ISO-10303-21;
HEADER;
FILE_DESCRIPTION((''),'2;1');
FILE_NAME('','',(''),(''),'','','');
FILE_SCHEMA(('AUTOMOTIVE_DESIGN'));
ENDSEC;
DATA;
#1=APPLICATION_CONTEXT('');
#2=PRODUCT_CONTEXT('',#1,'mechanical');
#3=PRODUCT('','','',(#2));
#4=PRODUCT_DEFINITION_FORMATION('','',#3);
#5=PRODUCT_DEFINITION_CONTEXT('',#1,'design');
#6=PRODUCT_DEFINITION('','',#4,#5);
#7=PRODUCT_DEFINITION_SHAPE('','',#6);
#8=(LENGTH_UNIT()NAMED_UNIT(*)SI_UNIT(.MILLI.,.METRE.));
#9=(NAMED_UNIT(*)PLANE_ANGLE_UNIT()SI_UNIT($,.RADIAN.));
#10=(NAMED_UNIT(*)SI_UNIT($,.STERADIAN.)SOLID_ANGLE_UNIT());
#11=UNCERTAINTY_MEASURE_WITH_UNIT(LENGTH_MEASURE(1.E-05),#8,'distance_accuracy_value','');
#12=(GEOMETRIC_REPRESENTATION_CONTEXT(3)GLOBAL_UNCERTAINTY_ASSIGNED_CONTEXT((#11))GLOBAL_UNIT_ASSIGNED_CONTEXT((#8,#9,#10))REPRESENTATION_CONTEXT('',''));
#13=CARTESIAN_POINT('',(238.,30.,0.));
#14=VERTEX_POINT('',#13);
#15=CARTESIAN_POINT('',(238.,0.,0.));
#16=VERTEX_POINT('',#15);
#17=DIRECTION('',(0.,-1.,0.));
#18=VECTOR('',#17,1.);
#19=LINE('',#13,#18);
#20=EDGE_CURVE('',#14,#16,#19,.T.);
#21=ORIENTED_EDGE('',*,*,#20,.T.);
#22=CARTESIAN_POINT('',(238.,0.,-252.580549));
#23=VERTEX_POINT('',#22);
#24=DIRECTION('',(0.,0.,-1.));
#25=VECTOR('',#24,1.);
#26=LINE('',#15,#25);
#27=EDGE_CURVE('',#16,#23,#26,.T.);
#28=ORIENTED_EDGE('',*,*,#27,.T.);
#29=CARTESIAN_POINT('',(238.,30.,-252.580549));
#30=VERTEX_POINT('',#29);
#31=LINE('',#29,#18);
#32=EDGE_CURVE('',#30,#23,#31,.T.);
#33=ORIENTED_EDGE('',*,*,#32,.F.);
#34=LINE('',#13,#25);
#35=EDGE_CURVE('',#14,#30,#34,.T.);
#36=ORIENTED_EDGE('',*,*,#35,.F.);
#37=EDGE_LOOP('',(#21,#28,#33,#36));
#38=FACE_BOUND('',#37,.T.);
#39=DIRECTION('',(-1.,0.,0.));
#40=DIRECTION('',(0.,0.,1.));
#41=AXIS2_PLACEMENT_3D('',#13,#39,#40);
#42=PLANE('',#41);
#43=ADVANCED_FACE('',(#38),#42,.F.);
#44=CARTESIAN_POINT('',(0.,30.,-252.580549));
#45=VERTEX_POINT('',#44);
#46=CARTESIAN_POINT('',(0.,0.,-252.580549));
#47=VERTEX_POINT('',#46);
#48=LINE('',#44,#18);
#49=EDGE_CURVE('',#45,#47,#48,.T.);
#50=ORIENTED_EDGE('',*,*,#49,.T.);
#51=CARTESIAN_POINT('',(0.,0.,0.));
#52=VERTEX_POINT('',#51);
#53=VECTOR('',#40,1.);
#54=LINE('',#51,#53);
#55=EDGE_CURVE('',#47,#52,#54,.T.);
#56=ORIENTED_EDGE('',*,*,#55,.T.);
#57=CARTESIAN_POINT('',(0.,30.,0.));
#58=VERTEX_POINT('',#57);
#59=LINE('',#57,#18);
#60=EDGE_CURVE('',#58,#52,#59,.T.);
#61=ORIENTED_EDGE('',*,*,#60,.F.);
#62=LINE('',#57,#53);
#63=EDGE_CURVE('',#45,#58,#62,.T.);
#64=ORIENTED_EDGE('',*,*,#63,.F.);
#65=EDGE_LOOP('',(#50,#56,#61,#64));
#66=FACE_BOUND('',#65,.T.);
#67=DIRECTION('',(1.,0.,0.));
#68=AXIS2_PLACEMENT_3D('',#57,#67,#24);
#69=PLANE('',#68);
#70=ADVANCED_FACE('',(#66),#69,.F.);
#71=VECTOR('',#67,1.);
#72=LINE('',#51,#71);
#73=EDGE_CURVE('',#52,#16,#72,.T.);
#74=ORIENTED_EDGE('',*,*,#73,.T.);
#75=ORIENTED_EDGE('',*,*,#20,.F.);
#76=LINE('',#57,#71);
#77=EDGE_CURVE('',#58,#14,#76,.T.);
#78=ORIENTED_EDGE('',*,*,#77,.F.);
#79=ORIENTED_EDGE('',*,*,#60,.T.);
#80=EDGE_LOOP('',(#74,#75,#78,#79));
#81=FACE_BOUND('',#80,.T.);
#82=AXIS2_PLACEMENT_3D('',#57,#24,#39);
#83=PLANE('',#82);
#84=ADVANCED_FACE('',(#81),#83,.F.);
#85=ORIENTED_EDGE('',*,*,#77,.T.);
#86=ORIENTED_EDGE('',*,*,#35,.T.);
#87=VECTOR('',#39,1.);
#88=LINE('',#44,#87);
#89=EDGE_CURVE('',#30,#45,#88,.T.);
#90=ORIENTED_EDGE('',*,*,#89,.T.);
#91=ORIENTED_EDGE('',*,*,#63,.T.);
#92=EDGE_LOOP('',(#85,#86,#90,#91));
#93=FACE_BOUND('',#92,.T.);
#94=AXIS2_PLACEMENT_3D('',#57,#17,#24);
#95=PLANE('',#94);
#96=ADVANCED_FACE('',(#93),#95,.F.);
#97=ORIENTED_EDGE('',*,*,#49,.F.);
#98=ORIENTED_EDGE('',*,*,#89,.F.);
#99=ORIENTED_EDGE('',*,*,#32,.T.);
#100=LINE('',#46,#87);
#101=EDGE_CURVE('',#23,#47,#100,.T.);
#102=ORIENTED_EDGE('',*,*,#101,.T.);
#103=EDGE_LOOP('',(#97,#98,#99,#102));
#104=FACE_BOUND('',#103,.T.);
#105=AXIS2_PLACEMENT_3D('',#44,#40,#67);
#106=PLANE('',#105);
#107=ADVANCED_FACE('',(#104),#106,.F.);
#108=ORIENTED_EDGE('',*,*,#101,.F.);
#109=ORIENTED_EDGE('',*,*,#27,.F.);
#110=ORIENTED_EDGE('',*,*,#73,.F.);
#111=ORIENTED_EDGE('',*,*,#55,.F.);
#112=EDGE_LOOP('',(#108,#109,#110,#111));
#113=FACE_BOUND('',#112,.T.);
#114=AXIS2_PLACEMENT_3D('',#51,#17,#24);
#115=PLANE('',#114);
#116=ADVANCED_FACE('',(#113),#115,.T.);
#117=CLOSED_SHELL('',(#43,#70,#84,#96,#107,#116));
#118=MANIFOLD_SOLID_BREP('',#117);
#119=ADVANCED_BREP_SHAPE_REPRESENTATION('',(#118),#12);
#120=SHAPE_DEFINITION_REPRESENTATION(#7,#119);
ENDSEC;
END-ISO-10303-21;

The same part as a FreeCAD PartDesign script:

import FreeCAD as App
import Part
import Sketcher
Q = App.Units.Quantity


def add_polygon(sketch, points):
    """Adds a closed chain of lines whose ends are joined by coincident constraints."""
    first, n = sketch.GeometryCount, len(points)
    for a, b in zip(points, points[1:] + points[:1]):
        sketch.addGeometry(Part.LineSegment(App.Vector(*a, 0), App.Vector(*b, 0)), False)
    for i in range(n):
        sketch.addConstraint(Sketcher.Constraint("Coincident", first + i, 2, first + (i + 1) % n, 1))

doc = App.newDocument("Part")
body = doc.addObject("PartDesign::Body", "Body")

# Sketch on XZ plane
sketch1 = doc.addObject("Sketcher::SketchObject", "Sketch")
body.addObject(sketch1)
sketch1.AttachmentSupport = (doc.XZ_Plane, [""])
sketch1.MapMode = "FlatFace"
add_polygon(sketch1, [(0, -253), (0, 0), (238, 0), (238, -253)])  # lines 0-3
sketch1.addConstraint(Sketcher.Constraint("Vertical", 0))
sketch1.addConstraint(Sketcher.Constraint("Horizontal", 1))
sketch1.addConstraint(Sketcher.Constraint("Vertical", 2))
sketch1.addConstraint(Sketcher.Constraint("Horizontal", 3))
sketch1.addConstraint(Sketcher.Constraint("Coincident", 0, 2, -1, 1))
sketch1.addConstraint(Sketcher.Constraint("DistanceX", 1, 1, 1, 2, Q("238 mm")))
sketch1.addConstraint(Sketcher.Constraint("DistanceY", 0, 1, 0, 2, Q("252.580549 mm")))
pad1 = doc.addObject("PartDesign::Pad", "Pad")
body.addObject(pad1)
pad1.Profile = sketch1
pad1.Length = 30
pad1.Reversed = True

doc.recompute()
